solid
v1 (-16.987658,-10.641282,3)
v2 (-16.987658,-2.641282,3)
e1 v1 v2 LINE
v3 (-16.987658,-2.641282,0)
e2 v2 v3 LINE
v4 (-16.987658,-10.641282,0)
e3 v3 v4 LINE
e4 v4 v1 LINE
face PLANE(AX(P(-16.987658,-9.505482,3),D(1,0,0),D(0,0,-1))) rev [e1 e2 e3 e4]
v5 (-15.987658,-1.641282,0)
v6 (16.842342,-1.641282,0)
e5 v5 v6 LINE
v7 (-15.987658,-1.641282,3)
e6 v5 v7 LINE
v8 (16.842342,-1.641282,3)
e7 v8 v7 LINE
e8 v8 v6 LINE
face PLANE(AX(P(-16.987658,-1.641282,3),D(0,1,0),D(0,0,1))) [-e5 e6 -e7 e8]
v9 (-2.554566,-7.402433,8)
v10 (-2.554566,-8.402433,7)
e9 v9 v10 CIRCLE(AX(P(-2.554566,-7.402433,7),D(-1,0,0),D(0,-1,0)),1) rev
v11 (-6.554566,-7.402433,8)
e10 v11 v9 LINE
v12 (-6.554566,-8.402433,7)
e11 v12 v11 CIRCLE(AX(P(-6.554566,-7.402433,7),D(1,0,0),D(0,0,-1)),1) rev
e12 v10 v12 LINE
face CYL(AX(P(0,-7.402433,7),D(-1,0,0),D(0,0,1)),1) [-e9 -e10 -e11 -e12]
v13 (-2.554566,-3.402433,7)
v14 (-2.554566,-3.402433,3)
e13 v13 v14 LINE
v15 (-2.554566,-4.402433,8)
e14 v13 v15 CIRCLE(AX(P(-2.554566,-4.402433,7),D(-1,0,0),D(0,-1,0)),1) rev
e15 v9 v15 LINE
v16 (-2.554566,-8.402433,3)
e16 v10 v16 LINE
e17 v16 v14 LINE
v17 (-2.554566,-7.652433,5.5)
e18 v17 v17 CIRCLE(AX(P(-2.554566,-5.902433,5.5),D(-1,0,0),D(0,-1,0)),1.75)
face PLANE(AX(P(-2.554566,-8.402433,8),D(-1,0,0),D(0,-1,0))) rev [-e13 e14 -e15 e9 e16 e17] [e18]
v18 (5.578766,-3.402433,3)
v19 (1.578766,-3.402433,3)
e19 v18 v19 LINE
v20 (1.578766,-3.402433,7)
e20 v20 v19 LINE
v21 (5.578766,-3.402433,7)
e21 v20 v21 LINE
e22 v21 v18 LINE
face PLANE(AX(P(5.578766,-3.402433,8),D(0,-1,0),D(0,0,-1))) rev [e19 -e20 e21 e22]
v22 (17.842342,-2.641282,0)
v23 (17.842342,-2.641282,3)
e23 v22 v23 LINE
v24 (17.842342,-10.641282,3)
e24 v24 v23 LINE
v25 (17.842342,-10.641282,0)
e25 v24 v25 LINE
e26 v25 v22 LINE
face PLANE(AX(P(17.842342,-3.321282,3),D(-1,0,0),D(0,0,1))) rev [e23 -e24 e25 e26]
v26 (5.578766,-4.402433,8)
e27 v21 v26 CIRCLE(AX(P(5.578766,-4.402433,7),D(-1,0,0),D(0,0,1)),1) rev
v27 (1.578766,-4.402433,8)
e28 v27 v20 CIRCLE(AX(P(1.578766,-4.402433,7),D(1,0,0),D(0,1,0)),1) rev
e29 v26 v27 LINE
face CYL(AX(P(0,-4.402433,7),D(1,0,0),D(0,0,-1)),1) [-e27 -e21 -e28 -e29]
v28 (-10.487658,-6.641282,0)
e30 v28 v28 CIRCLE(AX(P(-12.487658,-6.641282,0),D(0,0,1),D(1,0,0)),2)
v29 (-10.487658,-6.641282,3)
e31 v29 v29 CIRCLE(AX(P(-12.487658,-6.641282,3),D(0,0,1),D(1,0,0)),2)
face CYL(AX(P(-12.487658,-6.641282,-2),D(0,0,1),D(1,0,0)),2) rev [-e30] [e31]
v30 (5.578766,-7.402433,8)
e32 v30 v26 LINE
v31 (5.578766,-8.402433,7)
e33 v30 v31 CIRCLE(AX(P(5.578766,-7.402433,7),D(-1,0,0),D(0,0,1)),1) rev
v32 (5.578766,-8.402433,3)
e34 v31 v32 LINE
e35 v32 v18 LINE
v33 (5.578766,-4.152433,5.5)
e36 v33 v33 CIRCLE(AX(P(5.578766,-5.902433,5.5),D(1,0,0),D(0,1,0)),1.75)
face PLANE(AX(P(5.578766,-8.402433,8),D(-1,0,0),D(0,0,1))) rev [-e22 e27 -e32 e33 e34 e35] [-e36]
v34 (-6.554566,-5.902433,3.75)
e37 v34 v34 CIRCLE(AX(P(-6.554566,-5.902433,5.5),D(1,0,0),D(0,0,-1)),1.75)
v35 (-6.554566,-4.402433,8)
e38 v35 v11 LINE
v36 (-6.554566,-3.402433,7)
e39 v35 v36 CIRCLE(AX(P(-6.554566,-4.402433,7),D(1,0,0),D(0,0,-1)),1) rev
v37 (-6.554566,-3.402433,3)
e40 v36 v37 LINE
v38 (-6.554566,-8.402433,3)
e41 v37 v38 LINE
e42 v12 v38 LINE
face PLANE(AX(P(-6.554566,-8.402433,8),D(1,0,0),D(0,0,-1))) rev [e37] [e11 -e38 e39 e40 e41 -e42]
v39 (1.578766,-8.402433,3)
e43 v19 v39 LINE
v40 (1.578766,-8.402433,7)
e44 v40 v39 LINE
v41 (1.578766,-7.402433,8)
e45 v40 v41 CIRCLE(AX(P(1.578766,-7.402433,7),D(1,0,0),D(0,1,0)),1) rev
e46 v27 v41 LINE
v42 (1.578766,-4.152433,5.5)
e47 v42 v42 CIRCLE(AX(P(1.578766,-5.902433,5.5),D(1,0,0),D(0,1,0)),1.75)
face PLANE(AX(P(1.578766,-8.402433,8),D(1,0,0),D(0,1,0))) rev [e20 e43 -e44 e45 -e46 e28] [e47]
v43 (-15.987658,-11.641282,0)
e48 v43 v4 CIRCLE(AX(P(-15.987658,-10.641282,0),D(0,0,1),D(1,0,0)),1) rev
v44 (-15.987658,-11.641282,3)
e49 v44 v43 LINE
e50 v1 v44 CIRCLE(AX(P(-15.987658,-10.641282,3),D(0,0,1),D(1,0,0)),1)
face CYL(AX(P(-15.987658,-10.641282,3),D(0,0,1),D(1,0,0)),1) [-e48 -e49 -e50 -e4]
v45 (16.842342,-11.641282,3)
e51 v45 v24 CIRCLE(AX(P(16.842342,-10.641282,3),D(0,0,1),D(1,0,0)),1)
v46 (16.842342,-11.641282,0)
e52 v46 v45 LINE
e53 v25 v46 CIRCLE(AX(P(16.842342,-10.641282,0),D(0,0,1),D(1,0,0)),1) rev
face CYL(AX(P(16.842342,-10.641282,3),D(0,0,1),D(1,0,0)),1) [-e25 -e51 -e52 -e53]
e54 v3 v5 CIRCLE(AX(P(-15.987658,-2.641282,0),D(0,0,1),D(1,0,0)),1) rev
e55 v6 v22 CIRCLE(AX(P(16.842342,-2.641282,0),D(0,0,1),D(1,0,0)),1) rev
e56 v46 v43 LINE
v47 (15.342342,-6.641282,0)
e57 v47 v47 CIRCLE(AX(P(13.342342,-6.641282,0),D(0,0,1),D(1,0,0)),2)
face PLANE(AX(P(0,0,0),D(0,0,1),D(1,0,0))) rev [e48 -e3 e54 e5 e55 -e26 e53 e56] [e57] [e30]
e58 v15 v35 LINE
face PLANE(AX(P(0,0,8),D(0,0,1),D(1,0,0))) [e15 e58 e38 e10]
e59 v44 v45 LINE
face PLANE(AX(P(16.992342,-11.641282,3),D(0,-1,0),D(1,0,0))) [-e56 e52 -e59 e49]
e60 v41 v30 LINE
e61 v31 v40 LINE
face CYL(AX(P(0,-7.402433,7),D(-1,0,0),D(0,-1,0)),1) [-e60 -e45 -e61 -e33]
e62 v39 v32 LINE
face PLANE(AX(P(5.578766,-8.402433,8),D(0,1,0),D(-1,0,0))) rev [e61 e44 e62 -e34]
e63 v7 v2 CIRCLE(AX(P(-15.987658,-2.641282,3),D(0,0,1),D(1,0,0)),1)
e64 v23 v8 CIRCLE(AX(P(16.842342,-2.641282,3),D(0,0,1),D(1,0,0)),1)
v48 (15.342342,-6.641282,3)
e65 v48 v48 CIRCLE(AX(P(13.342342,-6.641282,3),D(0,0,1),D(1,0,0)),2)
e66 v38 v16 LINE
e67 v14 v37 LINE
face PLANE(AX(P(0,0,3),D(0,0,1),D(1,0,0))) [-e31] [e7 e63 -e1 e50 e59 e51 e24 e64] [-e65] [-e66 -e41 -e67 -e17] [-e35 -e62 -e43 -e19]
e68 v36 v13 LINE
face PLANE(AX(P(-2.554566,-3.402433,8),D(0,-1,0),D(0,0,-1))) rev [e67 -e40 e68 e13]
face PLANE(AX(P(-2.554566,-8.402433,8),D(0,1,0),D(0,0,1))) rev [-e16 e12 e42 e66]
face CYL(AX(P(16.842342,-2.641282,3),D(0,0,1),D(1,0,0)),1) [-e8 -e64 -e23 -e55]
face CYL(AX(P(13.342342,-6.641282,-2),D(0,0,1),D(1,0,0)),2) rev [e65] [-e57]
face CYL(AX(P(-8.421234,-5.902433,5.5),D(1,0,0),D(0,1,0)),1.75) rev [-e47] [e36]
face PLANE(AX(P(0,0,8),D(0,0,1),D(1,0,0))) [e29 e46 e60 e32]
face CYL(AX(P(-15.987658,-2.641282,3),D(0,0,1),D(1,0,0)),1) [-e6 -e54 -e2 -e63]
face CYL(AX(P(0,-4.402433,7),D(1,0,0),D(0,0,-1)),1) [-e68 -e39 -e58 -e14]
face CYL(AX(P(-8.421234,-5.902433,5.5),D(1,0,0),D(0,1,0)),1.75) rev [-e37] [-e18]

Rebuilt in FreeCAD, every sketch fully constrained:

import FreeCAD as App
import Part
import Sketcher


def edges_at(feature, points):
    """Names of the edges that pass closest to the given points."""
    edges = feature.Shape.Edges
    near = lambda p: min(range(len(edges)), key=lambda i: edges[i].distToShape(Part.Vertex(*p))[0])
    return sorted({f"Edge{near(p) + 1}" for p in points})


def add_polygon(sketch, points):
    """Adds a closed chain of lines whose ends are joined by coincident constraints."""
    first, n = sketch.GeometryCount, len(points)
    for a, b in zip(points, points[1:] + points[:1]):
        sketch.addGeometry(Part.LineSegment(App.Vector(*a, 0), App.Vector(*b, 0)), False)
    for i in range(n):
        sketch.addConstraint(Sketcher.Constraint("Coincident", first + i, 2, first + (i + 1) % n, 1))

doc = App.newDocument("Part")
body = doc.addObject("PartDesign::Body", "Body")

# Sketch on XY plane
sketch1 = body.newObject("Sketcher::SketchObject", "Sketch")
sketch1.AttachmentSupport = (doc.getObject("XY_Plane"), [""])
sketch1.MapMode = "FlatFace"
add_polygon(sketch1, [(18, -12), (18, -2), (-17, -2), (-17, -12)])  # lines 0-3
sketch1.addConstraint([
    Sketcher.Constraint("Vertical", 0),
    Sketcher.Constraint("Horizontal", 1),
    Sketcher.Constraint("Vertical", 2),
    Sketcher.Constraint("Horizontal", 3),
    Sketcher.Constraint("DistanceY", 0, 1, 0, 2, 10.0),
    Sketcher.Constraint("DistanceX", 1, 2, 1, 1, 34.83),
    Sketcher.Constraint("DistanceY", 0, 2, -1, 1, 1.641282),
    Sketcher.Constraint("DistanceX", -1, 1, 0, 2, 17.842342),
])
pad1 = body.newObject("PartDesign::Pad", "Pad")
pad1.Profile = sketch1
pad1.Length = 3

# Sketch on XY plane
sketch2 = body.newObject("Sketcher::SketchObject", "Sketch001")
sketch2.AttachmentSupport = (doc.getObject("XY_Plane"), [""])
sketch2.MapMode = "FlatFace"
sketch2.AttachmentOffset = App.Placement(App.Vector(0, 0, 3), App.Rotation())
add_polygon(sketch2, [(-6.6, -3.4), (-6.6, -8.4), (-2.6, -8.4), (-2.6, -3.4)])  # lines 0-3
add_polygon(sketch2, [(1.6, -3.4), (1.6, -8.4), (5.6, -8.4), (5.6, -3.4)])  # lines 4-7
sketch2.addConstraint([
    Sketcher.Constraint("Vertical", 0),
    Sketcher.Constraint("Horizontal", 1),
    Sketcher.Constraint("Vertical", 2),
    Sketcher.Constraint("Horizontal", 3),
    Sketcher.Constraint("Vertical", 4),
    Sketcher.Constraint("Horizontal", 5),
    Sketcher.Constraint("Vertical", 6),
    Sketcher.Constraint("Horizontal", 7),
    Sketcher.Constraint("Horizontal", 1, 2, 4, 2),
    Sketcher.Constraint("Horizontal", 3, 2, 6, 2),
    Sketcher.Constraint("Equal", 3, 5),
    Sketcher.Constraint("DistanceX", 1, 1, 1, 2, 4.0),
    Sketcher.Constraint("DistanceY", 0, 2, 0, 1, 5.0),
    Sketcher.Constraint("DistanceX", 0, 2, 4, 2, 8.133332),
    Sketcher.Constraint("DistanceX", 0, 2, -1, 1, 6.554566),
    Sketcher.Constraint("DistanceY", 0, 2, -1, 1, 8.402433),
])
pad2 = body.newObject("PartDesign::Pad", "Pad001")
pad2.Profile = sketch2
pad2.Length = 5

# Sketch on YZ plane
sketch3 = body.newObject("Sketcher::SketchObject", "Sketch002")
sketch3.AttachmentSupport = (doc.getObject("YZ_Plane"), [""])
sketch3.MapMode = "FlatFace"
sketch3.AttachmentOffset = App.Placement(App.Vector(0, 0, 5.578766), App.Rotation())
sketch3.addGeometry(Part.Circle(App.Vector(-5.9, 5.5, 0), App.Vector(0, 0, 1), 1.8), False)
sketch3.addConstraint([
    Sketcher.Constraint("Diameter", 0, 3.5),
    Sketcher.Constraint("DistanceY", -1, 1, 0, 3, 5.5),
    Sketcher.Constraint("DistanceX", 0, 3, -1, 1, 5.902433),
])
pocket1 = body.newObject("PartDesign::Pocket", "Pocket")
pocket1.Profile = sketch3
pocket1.Length = 14
doc.recompute()

fillet = body.newObject("PartDesign::Fillet", "Fillet")
fillet.Base = (pocket1, edges_at(pocket1, [
    (-16.988, -11.641, 1.5),
    (-16.988, -1.641, 1.5),
    (17.842, -1.641, 1.5),
    (17.842, -11.641, 1.5),
]))
fillet.Radius = 1

# Sketch on XY plane
sketch4 = body.newObject("Sketcher::SketchObject", "Sketch003")
sketch4.AttachmentSupport = (doc.getObject("XY_Plane"), [""])
sketch4.MapMode = "FlatFace"
sketch4.AttachmentOffset = App.Placement(App.Vector(0, 0, 3), App.Rotation())
sketch4.addGeometry(Part.Circle(App.Vector(-12.5, -6.6, 0), App.Vector(0, 0, 1), 2), False)
sketch4.addConstraint([
    Sketcher.Constraint("Diameter", 0, 4.0),
    Sketcher.Constraint("DistanceY", 0, 3, -1, 1, 6.641282),
    Sketcher.Constraint("DistanceX", 0, 3, -1, 1, 12.487658),
])
pocket2 = body.newObject("PartDesign::Pocket", "Pocket001")
pocket2.Profile = sketch4
pocket2.Length = 5

# Sketch on XY plane
sketch5 = body.newObject("Sketcher::SketchObject", "Sketch004")
sketch5.AttachmentSupport = (doc.getObject("XY_Plane"), [""])
sketch5.MapMode = "FlatFace"
sketch5.AttachmentOffset = App.Placement(App.Vector(0, 0, 3), App.Rotation())
sketch5.addGeometry(Part.Circle(App.Vector(13.3, -6.6, 0), App.Vector(0, 0, 1), 2), False)
sketch5.addConstraint([
    Sketcher.Constraint("Diameter", 0, 4.0),
    Sketcher.Constraint("DistanceY", 0, 3, -1, 1, 6.641282),
    Sketcher.Constraint("DistanceX", -1, 1, 0, 3, 13.342342),
])
pocket3 = body.newObject("PartDesign::Pocket", "Pocket002")
pocket3.Profile = sketch5
pocket3.Length = 5
doc.recompute()

fillet2 = body.newObject("PartDesign::Fillet", "Fillet001")
fillet2.Base = (pocket3, edges_at(pocket3, [
    (-4.555, -8.402, 8),
    (-4.555, -3.402, 8),
    (3.579, -3.402, 8),
    (3.579, -8.402, 8),
]))
fillet2.Radius = 1

doc.recompute()
